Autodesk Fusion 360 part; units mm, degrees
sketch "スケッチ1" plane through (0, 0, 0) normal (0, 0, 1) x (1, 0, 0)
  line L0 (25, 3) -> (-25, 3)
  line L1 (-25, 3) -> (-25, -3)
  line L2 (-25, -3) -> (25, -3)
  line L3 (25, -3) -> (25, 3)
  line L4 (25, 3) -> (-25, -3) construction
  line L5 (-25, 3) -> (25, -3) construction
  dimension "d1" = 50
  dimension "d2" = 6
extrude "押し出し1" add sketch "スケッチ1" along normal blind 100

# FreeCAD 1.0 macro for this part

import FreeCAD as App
import Part
import Sketcher
Q = App.Units.Quantity

doc = App.newDocument("Part")
params = doc.addObject("Spreadsheet::Sheet", "Params")
for row, (alias, value) in enumerate([
    ("sketch1_width", "50 mm"),
    ("sketch1_height", "6 mm"),
    ("pad1_length", "100 mm"),
], start=1):
    params.set(f"A{row}", alias)
    params.set(f"B{row}", "=" + value)
    params.setAlias(f"B{row}", alias)

body = doc.addObject("PartDesign::Body", "Body")

# Sketch on XY plane
sketch1 = body.newObject("Sketcher::SketchObject", "Sketch")
sketch1.AttachmentSupport = (doc.getObject("XY_Plane"), [""])
sketch1.MapMode = "FlatFace"
sketch1.addGeometry(Part.LineSegment(App.Vector(25, -3, 0), App.Vector(25, 3, 0)), False)
sketch1.addGeometry(Part.LineSegment(App.Vector(25, 3, 0), App.Vector(-25, 3, 0)), False)
sketch1.addGeometry(Part.LineSegment(App.Vector(-25, 3, 0), App.Vector(-25, -3, 0)), False)
sketch1.addGeometry(Part.LineSegment(App.Vector(-25, -3, 0), App.Vector(25, -3, 0)), False)
sketch1.addConstraint(Sketcher.Constraint("Coincident", 0, 2, 1, 1))
sketch1.addConstraint(Sketcher.Constraint("Coincident", 1, 2, 2, 1))
sketch1.addConstraint(Sketcher.Constraint("Coincident", 2, 2, 3, 1))
sketch1.addConstraint(Sketcher.Constraint("Coincident", 3, 2, 0, 1))
sketch1.addConstraint(Sketcher.Constraint("Vertical", 0))
sketch1.addConstraint(Sketcher.Constraint("Horizontal", 1))
sketch1.addConstraint(Sketcher.Constraint("Vertical", 2))
sketch1.addConstraint(Sketcher.Constraint("Horizontal", 3))
sketch1.addConstraint(Sketcher.Constraint("Symmetric", 0, 2, 2, 2, -1, 1))
sketch1.addConstraint(Sketcher.Constraint("DistanceX", 1, 2, 1, 1, Q("50 mm")))
sketch1.addConstraint(Sketcher.Constraint("DistanceY", 0, 1, 0, 2, Q("6 mm")))
sketch1.setExpression("Constraints[9]", "Params.sketch1_width")
sketch1.setExpression("Constraints[10]", "Params.sketch1_height")
pad1 = body.newObject("PartDesign::Pad", "Pad")
pad1.Profile = sketch1
pad1.setExpression("Length", "Params.pad1_length")

doc.recompute()
